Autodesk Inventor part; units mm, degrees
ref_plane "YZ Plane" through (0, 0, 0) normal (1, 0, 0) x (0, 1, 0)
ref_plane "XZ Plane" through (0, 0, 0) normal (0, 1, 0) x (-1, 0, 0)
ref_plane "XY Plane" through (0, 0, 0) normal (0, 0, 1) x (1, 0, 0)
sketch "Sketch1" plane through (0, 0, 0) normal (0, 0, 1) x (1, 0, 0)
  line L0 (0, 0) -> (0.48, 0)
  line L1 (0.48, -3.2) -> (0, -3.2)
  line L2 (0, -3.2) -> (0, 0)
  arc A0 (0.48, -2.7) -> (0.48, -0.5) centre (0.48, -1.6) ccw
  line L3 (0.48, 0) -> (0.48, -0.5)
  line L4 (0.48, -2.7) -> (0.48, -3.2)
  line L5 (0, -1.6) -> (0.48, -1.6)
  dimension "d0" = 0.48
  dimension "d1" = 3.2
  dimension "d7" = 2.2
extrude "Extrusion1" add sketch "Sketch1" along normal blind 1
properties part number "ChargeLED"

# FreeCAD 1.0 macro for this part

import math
import FreeCAD as App
import Part
import Sketcher
from FreeCAD import Vector

doc = App.newDocument("Part")
body = doc.addObject("PartDesign::Body", "Body")

# Sketch on XY plane
sketch1 = body.newObject("Sketcher::SketchObject", "Sketch")
sketch1.AttachmentSupport = (doc.getObject("XY_Plane"), [""])
sketch1.MapMode = "FlatFace"
sketch1.addGeometry([
    Part.LineSegment(Vector(0.48, 0, 0), Vector(0, 0, 0)),  # 0
    Part.LineSegment(Vector(0, 0, 0), Vector(0, -3.2, 0)),  # 1
    Part.LineSegment(Vector(0, -3.2, 0), Vector(0.48, -3.2, 0)),  # 2
    Part.LineSegment(Vector(0.48, -3.2, 0), Vector(0.48, -2.7, 0)),  # 3
    Part.ArcOfCircle(Part.Circle(Vector(0.48, -1.6, 0), Vector(0, 0, 1), 1.1), math.radians(-90), math.radians(90)),  # 4
    Part.LineSegment(Vector(0.48, -0.5, 0), Vector(0.48, 0, 0)),  # 5
], False)
sketch1.addConstraint([
    Sketcher.Constraint("Coincident", 0, 2, 1, 1),
    Sketcher.Constraint("Coincident", 1, 2, 2, 1),
    Sketcher.Constraint("Coincident", 2, 2, 3, 1),
    Sketcher.Constraint("Coincident", 3, 2, 4, 1),
    Sketcher.Constraint("Coincident", 4, 2, 5, 1),
    Sketcher.Constraint("Coincident", 5, 2, 0, 1),
    Sketcher.Constraint("Horizontal", 0),
    Sketcher.Constraint("Vertical", 1),
    Sketcher.Constraint("Horizontal", 2),
    Sketcher.Constraint("Vertical", 3),
    Sketcher.Constraint("Vertical", 5),
    Sketcher.Constraint("Coincident", 0, 2, -1, 1),
    Sketcher.Constraint("Vertical", 4, 3, 2, 2),
    Sketcher.Constraint("Vertical", 3, 2, 4, 2),
    Sketcher.Constraint("Equal", 3, 5),
    Sketcher.Constraint("Radius", 4, 1.1),
    Sketcher.Constraint("DistanceY", 1, 2, 1, 1, 3.2),
    Sketcher.Constraint("DistanceX", 0, 2, 0, 1, 0.48),
])
pad1 = body.newObject("PartDesign::Pad", "Pad")
pad1.Profile = sketch1
pad1.Length = 1

doc.recompute()
